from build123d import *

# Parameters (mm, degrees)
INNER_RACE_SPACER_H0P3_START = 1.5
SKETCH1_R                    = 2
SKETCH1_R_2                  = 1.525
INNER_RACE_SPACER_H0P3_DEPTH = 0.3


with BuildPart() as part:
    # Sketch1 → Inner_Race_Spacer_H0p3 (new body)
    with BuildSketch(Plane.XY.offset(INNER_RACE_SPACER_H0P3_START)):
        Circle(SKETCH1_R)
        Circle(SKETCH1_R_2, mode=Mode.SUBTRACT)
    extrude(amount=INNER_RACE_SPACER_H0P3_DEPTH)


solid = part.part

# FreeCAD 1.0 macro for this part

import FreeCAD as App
import Part
import Sketcher

V = App.Vector

doc = App.newDocument("Part")
body = doc.addObject("PartDesign::Body", "Body")

sketch1 = body.newObject("Sketcher::SketchObject", "Sketch")
sketch1.AttachmentSupport = (doc.getObject("XY_Plane"), [""])
sketch1.MapMode = "FlatFace"
sketch1.AttachmentOffset = App.Placement(V(0, 0, 1.5), App.Rotation())
sketch1.addGeometry([
    Part.Circle(V(0, 0, 0), V(0, 0, 1), 2),
    Part.Circle(V(0, 0, 0), V(0, 0, 1), 1.5),
], False)
sketch1.addConstraint([
    Sketcher.Constraint("Coincident", 0, 3, -1, 1),
    Sketcher.Constraint("Coincident", 1, 3, -1, 1),
    Sketcher.Constraint("Diameter", 0, 4.0),
    Sketcher.Constraint("Diameter", 1, 3.05),
])
pad1 = body.newObject("PartDesign::Pad", "Pad")
pad1.Profile = sketch1
pad1.Length = 0.3

doc.recompute()
